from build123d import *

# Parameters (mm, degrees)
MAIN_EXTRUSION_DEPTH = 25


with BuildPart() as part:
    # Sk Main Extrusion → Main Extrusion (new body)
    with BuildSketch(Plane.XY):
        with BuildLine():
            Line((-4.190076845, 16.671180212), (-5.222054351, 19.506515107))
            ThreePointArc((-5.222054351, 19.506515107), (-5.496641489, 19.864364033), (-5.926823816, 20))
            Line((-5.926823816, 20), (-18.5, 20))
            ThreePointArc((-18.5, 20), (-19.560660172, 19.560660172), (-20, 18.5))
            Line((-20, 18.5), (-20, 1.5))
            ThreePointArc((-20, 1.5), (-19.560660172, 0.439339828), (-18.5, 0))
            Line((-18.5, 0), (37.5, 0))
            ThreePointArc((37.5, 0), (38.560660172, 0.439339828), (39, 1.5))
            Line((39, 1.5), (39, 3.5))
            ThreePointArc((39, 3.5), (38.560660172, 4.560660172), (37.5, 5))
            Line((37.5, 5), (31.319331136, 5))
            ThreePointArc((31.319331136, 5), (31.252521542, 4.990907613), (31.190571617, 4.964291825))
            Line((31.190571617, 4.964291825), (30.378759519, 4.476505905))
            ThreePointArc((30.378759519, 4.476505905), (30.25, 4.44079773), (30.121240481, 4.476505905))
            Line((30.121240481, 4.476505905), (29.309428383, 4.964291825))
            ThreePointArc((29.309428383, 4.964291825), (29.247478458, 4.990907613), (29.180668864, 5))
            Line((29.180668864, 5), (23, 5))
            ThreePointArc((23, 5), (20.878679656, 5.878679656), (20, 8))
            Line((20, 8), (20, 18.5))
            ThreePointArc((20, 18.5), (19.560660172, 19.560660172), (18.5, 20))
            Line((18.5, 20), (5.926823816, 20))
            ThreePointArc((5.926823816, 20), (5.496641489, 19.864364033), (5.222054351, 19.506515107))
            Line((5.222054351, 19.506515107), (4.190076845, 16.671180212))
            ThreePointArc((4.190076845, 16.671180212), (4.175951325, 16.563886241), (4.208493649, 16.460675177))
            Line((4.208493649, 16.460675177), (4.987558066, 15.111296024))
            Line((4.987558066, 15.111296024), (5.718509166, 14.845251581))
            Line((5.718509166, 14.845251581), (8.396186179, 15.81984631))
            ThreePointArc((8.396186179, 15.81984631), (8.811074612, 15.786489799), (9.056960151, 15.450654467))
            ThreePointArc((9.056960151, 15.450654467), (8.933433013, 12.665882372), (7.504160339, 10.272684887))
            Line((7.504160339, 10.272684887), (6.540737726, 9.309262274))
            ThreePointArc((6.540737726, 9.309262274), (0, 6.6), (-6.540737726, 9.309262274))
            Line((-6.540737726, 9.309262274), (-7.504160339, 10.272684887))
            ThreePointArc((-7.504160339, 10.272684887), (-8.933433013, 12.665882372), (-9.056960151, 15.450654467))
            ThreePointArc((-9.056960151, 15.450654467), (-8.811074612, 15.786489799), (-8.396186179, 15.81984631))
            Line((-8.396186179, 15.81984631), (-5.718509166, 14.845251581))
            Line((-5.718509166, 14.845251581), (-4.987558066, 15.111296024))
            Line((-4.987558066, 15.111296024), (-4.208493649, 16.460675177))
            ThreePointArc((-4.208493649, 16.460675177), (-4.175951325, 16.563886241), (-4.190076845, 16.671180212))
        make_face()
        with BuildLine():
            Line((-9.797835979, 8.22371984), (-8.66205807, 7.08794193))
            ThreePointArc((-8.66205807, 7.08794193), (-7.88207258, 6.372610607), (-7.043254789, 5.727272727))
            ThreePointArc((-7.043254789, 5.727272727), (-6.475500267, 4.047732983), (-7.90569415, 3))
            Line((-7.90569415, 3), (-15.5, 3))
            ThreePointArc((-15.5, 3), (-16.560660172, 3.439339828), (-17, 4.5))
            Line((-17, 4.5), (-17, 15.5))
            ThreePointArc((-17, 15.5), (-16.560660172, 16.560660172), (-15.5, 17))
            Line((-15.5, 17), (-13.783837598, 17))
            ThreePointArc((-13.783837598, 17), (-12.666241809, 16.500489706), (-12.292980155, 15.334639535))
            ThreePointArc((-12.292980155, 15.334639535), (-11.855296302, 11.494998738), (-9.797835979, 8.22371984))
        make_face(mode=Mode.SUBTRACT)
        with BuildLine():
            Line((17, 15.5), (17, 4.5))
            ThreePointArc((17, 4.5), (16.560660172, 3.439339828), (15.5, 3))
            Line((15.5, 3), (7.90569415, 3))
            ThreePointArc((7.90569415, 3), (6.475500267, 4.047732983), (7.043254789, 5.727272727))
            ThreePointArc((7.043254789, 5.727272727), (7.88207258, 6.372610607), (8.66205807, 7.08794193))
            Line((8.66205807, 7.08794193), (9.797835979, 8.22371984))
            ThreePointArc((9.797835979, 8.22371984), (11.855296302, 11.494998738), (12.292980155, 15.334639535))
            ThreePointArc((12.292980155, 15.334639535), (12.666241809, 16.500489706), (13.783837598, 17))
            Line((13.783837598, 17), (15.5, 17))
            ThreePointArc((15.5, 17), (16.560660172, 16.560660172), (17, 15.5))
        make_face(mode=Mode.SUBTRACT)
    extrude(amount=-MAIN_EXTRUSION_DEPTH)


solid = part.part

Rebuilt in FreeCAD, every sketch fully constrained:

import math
import FreeCAD as App
import Part
import Sketcher

V = App.Vector
Q = App.Units.Quantity

doc = App.newDocument("Part")
body = doc.addObject("PartDesign::Body", "Body")

sketch1 = doc.addObject("Sketcher::SketchObject", "Sketch")
body.addObject(sketch1)
sketch1.AttachmentSupport = (doc.XY_Plane, [""])
sketch1.MapMode = "FlatFace"
sketch1.addGeometry([
    Part.LineSegment(V(-4.19, 16.67, 0), V(-5.22, 19.51, 0)),
    Part.ArcOfCircle(Part.Circle(V(-5.93, 19.25, 0), V(0, 0, 1), 0.75), math.radians(20), math.radians(90)),
    Part.LineSegment(V(-5.93, 20, 0), V(-18.5, 20, 0)),
    Part.ArcOfCircle(Part.Circle(V(-18.5, 18.5, 0), V(0, 0, 1), 1.5), math.radians(90), math.radians(180)),
    Part.LineSegment(V(-20, 18.5, 0), V(-20, 1.5, 0)),
    Part.ArcOfCircle(Part.Circle(V(-18.5, 1.5, 0), V(0, 0, 1), 1.5), math.radians(180), math.radians(270)),
    Part.LineSegment(V(-18.5, 0, 0), V(37.5, 0, 0)),
    Part.ArcOfCircle(Part.Circle(V(37.5, 1.5, 0), V(0, 0, 1), 1.5), math.radians(-90), math.radians(0)),
    Part.LineSegment(V(39, 1.5, 0), V(39, 3.5, 0)),
    Part.ArcOfCircle(Part.Circle(V(37.5, 3.5, 0), V(0, 0, 1), 1.5), math.radians(0), math.radians(90)),
    Part.LineSegment(V(37.5, 5, 0), V(31.32, 5, 0)),
    Part.ArcOfCircle(Part.Circle(V(31.32, 4.75, 0), V(0, 0, 1), 0.25), math.radians(90), math.radians(121)),
    Part.LineSegment(V(31.19, 4.96, 0), V(30.38, 4.48, 0)),
    Part.ArcOfCircle(Part.Circle(V(30.25, 4.69, 0), V(0, 0, 1), 0.25), math.radians(-121), math.radians(-59)),
    Part.LineSegment(V(30.12, 4.48, 0), V(29.31, 4.96, 0)),
    Part.ArcOfCircle(Part.Circle(V(29.18, 4.75, 0), V(0, 0, 1), 0.25), math.radians(59), math.radians(90)),
    Part.LineSegment(V(29.18, 5, 0), V(23, 5, 0)),
    Part.ArcOfCircle(Part.Circle(V(23, 8, 0), V(0, 0, 1), 3), math.radians(180), math.radians(270)),
    Part.LineSegment(V(20, 8, 0), V(20, 18.5, 0)),
    Part.ArcOfCircle(Part.Circle(V(18.5, 18.5, 0), V(0, 0, 1), 1.5), math.radians(0), math.radians(90)),
    Part.LineSegment(V(18.5, 20, 0), V(5.93, 20, 0)),
    Part.ArcOfCircle(Part.Circle(V(5.93, 19.25, 0), V(0, 0, 1), 0.75), math.radians(90), math.radians(160)),
    Part.LineSegment(V(5.22, 19.51, 0), V(4.19, 16.67, 0)),
    Part.ArcOfCircle(Part.Circle(V(4.42, 16.59, 0), V(0, 0, 1), 0.25), math.radians(160), math.radians(210)),
    Part.LineSegment(V(4.21, 16.46, 0), V(4.99, 15.11, 0)),
    Part.LineSegment(V(4.99, 15.11, 0), V(5.72, 14.85, 0)),
    Part.LineSegment(V(5.72, 14.85, 0), V(8.4, 15.82, 0)),
    Part.ArcOfCircle(Part.Circle(V(8.57, 15.35, 0), V(0, 0, 1), 0.5), math.radians(12), math.radians(110)),
    Part.ArcOfCircle(Part.Circle(V(3.47, 14.3, 0), V(0, 0, 1), 5.7), math.radians(-45), math.radians(12)),
    Part.LineSegment(V(7.5, 10.27, 0), V(6.54, 9.31, 0)),
    Part.ArcOfCircle(Part.Circle(V(0, 15.85, 0), V(0, 0, 1), 9.25), math.radians(-135), math.radians(-45)),
    Part.LineSegment(V(-6.54, 9.31, 0), V(-7.5, 10.27, 0)),
    Part.ArcOfCircle(Part.Circle(V(-3.47, 14.3, 0), V(0, 0, 1), 5.7), math.radians(168), math.radians(225)),
    Part.ArcOfCircle(Part.Circle(V(-8.57, 15.35, 0), V(0, 0, 1), 0.5), math.radians(70), math.radians(168)),
    Part.LineSegment(V(-8.4, 15.82, 0), V(-5.72, 14.85, 0)),
    Part.LineSegment(V(-5.72, 14.85, 0), V(-4.99, 15.11, 0)),
    Part.LineSegment(V(-4.99, 15.11, 0), V(-4.21, 16.46, 0)),
    Part.ArcOfCircle(Part.Circle(V(-4.42, 16.59, 0), V(0, 0, 1), 0.25), math.radians(-30), math.radians(20)),
    Part.ArcOfCircle(Part.Circle(V(-3.65, 14.38, 0), V(0, 0, 1), 8.7), math.radians(174), math.radians(225)),
    Part.LineSegment(V(-9.8, 8.22, 0), V(-8.66, 7.09, 0)),
    Part.ArcOfCircle(Part.Circle(V(0, 15.75, 0), V(0, 0, 1), 12.25), math.radians(-135), math.radians(-125.1)),
    Part.ArcOfCircle(Part.Circle(V(-7.91, 4.5, 0), V(0, 0, 1), 1.5), math.radians(-90), math.radians(55)),
    Part.LineSegment(V(-7.91, 3, 0), V(-15.5, 3, 0)),
    Part.ArcOfCircle(Part.Circle(V(-15.5, 4.5, 0), V(0, 0, 1), 1.5), math.radians(180), math.radians(270)),
    Part.LineSegment(V(-17, 4.5, 0), V(-17, 15.5, 0)),
    Part.ArcOfCircle(Part.Circle(V(-15.5, 15.5, 0), V(0, 0, 1), 1.5), math.radians(90), math.radians(180)),
    Part.LineSegment(V(-15.5, 17, 0), V(-13.78, 17, 0)),
    Part.ArcOfCircle(Part.Circle(V(-13.78, 15.5, 0), V(0, 0, 1), 1.5), math.radians(-6), math.radians(90)),
    Part.ArcOfCircle(Part.Circle(V(15.5, 15.5, 0), V(0, 0, 1), 1.5), math.radians(0), math.radians(90)),
    Part.LineSegment(V(17, 15.5, 0), V(17, 4.5, 0)),
    Part.ArcOfCircle(Part.Circle(V(15.5, 4.5, 0), V(0, 0, 1), 1.5), math.radians(-90), math.radians(0)),
    Part.LineSegment(V(15.5, 3, 0), V(7.91, 3, 0)),
    Part.ArcOfCircle(Part.Circle(V(7.91, 4.5, 0), V(0, 0, 1), 1.5), math.radians(125), math.radians(270)),
    Part.ArcOfCircle(Part.Circle(V(0, 15.75, 0), V(0, 0, 1), 12.25), math.radians(-54.9), math.radians(-45)),
    Part.LineSegment(V(8.66, 7.09, 0), V(9.8, 8.22, 0)),
    Part.ArcOfCircle(Part.Circle(V(3.65, 14.38, 0), V(0, 0, 1), 8.7), math.radians(-45), math.radians(6)),
    Part.ArcOfCircle(Part.Circle(V(13.78, 15.5, 0), V(0, 0, 1), 1.5), math.radians(90), math.radians(186)),
    Part.LineSegment(V(13.78, 17, 0), V(15.5, 17, 0)),
], False)
sketch1.addConstraint([
    Sketcher.Constraint("Tangent", 0, 2, 1, 1),
    Sketcher.Constraint("Tangent", 1, 2, 2, 1),
    Sketcher.Constraint("Tangent", 2, 2, 3, 1),
    Sketcher.Constraint("Tangent", 3, 2, 4, 1),
    Sketcher.Constraint("Tangent", 4, 2, 5, 1),
    Sketcher.Constraint("Tangent", 5, 2, 6, 1),
    Sketcher.Constraint("Tangent", 6, 2, 7, 1),
    Sketcher.Constraint("Tangent", 7, 2, 8, 1),
    Sketcher.Constraint("Tangent", 8, 2, 9, 1),
    Sketcher.Constraint("Tangent", 9, 2, 10, 1),
    Sketcher.Constraint("Tangent", 10, 2, 11, 1),
    Sketcher.Constraint("Tangent", 11, 2, 12, 1),
    Sketcher.Constraint("Tangent", 12, 2, 13, 2),
    Sketcher.Constraint("Tangent", 13, 1, 14, 1),
    Sketcher.Constraint("Tangent", 14, 2, 15, 1),
    Sketcher.Constraint("Tangent", 15, 2, 16, 1),
    Sketcher.Constraint("Tangent", 16, 2, 17, 2),
    Sketcher.Constraint("Tangent", 17, 1, 18, 1),
    Sketcher.Constraint("Tangent", 18, 2, 19, 1),
    Sketcher.Constraint("Tangent", 19, 2, 20, 1),
    Sketcher.Constraint("Tangent", 20, 2, 21, 1),
    Sketcher.Constraint("Tangent", 21, 2, 22, 1),
    Sketcher.Constraint("Tangent", 22, 2, 23, 1),
    Sketcher.Constraint("Tangent", 23, 2, 24, 1),
    Sketcher.Constraint("Coincident", 24, 2, 25, 1),
    Sketcher.Constraint("Coincident", 25, 2, 26, 1),
    Sketcher.Constraint("Tangent", 26, 2, 27, 2),
    Sketcher.Constraint("Tangent", 27, 1, 28, 2),
    Sketcher.Constraint("Tangent", 28, 1, 29, 1),
    Sketcher.Constraint("Tangent", 29, 2, 30, 2),
    Sketcher.Constraint("Tangent", 30, 1, 31, 1),
    Sketcher.Constraint("Tangent", 31, 2, 32, 2),
    Sketcher.Constraint("Tangent", 32, 1, 33, 2),
    Sketcher.Constraint("Tangent", 33, 1, 34, 1),
    Sketcher.Constraint("Coincident", 34, 2, 35, 1),
    Sketcher.Constraint("Coincident", 35, 2, 36, 1),
    Sketcher.Constraint("Tangent", 36, 2, 37, 1),
    Sketcher.Constraint("Tangent", 37, 2, 0, 1),
    Sketcher.Constraint("Tangent", 38, 2, 39, 1),
    Sketcher.Constraint("Tangent", 39, 2, 40, 1),
    Sketcher.Constraint("Tangent", 40, 2, 41, 2),
    Sketcher.Constraint("Tangent", 41, 1, 42, 1),
    Sketcher.Constraint("Tangent", 42, 2, 43, 2),
    Sketcher.Constraint("Tangent", 43, 1, 44, 1),
    Sketcher.Constraint("Tangent", 44, 2, 45, 2),
    Sketcher.Constraint("Tangent", 45, 1, 46, 1),
    Sketcher.Constraint("Tangent", 46, 2, 47, 2),
    Sketcher.Constraint("Tangent", 47, 1, 38, 1),
    Sketcher.Constraint("Tangent", 48, 1, 49, 1),
    Sketcher.Constraint("Tangent", 49, 2, 50, 2),
    Sketcher.Constraint("Tangent", 50, 1, 51, 1),
    Sketcher.Constraint("Tangent", 51, 2, 52, 2),
    Sketcher.Constraint("Tangent", 52, 1, 53, 1),
    Sketcher.Constraint("Tangent", 53, 2, 54, 1),
    Sketcher.Constraint("Tangent", 54, 2, 55, 1),
    Sketcher.Constraint("Tangent", 55, 2, 56, 2),
    Sketcher.Constraint("Tangent", 56, 1, 57, 1),
    Sketcher.Constraint("Tangent", 57, 2, 48, 2),
    Sketcher.Constraint("Horizontal", 2),
    Sketcher.Constraint("Vertical", 4),
    Sketcher.Constraint("Horizontal", 6),
    Sketcher.Constraint("Vertical", 8),
    Sketcher.Constraint("Horizontal", 10),
    Sketcher.Constraint("Horizontal", 16),
    Sketcher.Constraint("Vertical", 18),
    Sketcher.Constraint("Horizontal", 20),
    Sketcher.Constraint("Horizontal", 42),
    Sketcher.Constraint("Vertical", 44),
    Sketcher.Constraint("Horizontal", 46),
    Sketcher.Constraint("Vertical", 49),
    Sketcher.Constraint("Horizontal", 51),
    Sketcher.Constraint("Horizontal", 57),
    Sketcher.Constraint("Coincident", 53, 3, 40, 3),
    Sketcher.Constraint("Equal", 3, 5),
    Sketcher.Constraint("Equal", 5, 7),
    Sketcher.Constraint("Equal", 7, 9),
    Sketcher.Constraint("Equal", 11, 13),
    Sketcher.Constraint("Equal", 13, 15),
    Sketcher.Constraint("Equal", 9, 19),
    Sketcher.Constraint("Equal", 1, 21),
    Sketcher.Constraint("Equal", 15, 23),
    Sketcher.Constraint("Equal", 28, 32),
    Sketcher.Constraint("Equal", 27, 33),
    Sketcher.Constraint("Equal", 23, 37),
    Sketcher.Constraint("Equal", 19, 41),
    Sketcher.Constraint("Equal", 41, 43),
    Sketcher.Constraint("Equal", 43, 45),
    Sketcher.Constraint("Equal", 45, 47),
    Sketcher.Constraint("Equal", 47, 48),
    Sketcher.Constraint("Equal", 48, 50),
    Sketcher.Constraint("Equal", 50, 52),
    Sketcher.Constraint("Equal", 40, 53),
    Sketcher.Constraint("Equal", 38, 55),
    Sketcher.Constraint("Equal", 52, 56),
    Sketcher.Constraint("Symmetric", 3, 3, 19, 3, -2),
    Sketcher.Constraint("Symmetric", 28, 3, 32, 3, -2),
    Sketcher.Constraint("Symmetric", 23, 3, 37, 3, -2),
    Sketcher.Constraint("Symmetric", 45, 3, 48, 3, -2),
    Sketcher.Constraint("Symmetric", 41, 3, 52, 3, -2),
    Sketcher.Constraint("Symmetric", 38, 3, 55, 3, -2),
    Sketcher.Constraint("Symmetric", 26, 2, 33, 1, -2),
    Sketcher.Constraint("Symmetric", 24, 2, 35, 2, -2),
    Sketcher.Constraint("PointOnObject", 30, 3, -2),
    Sketcher.Constraint("PointOnObject", 5, 2, -1),
    Sketcher.Constraint("Perpendicular", 22, 25),
    Sketcher.Constraint("Perpendicular", 0, 26),
    Sketcher.Constraint("Perpendicular", 29, 31),
    Sketcher.Constraint("Parallel", 25, 34),
    Sketcher.Constraint("Parallel", 26, 35),
    Sketcher.Constraint("Parallel", 31, 39),
    Sketcher.Constraint("Horizontal", 11, 3, 15, 3),
    Sketcher.Constraint("Horizontal", 12, 2, 13, 1),
    Sketcher.Constraint("Equal", 10, 16),
    Sketcher.Constraint("Radius", 17, 3.0),
    Sketcher.Constraint("Radius", 3, 1.5),
    Sketcher.Constraint("Radius", 27, 0.5),
    Sketcher.Constraint("Radius", 28, 5.7),
    Sketcher.Constraint("Radius", 38, 8.7),
    Sketcher.Constraint("DistanceX", 6, 1, 6, 2, 56.0),
    Sketcher.Constraint("DistanceY", 4, 2, 4, 1, 17.0),
    Sketcher.Constraint("DistanceY", 8, 1, 8, 2, 2.0),
    Sketcher.Constraint("DistanceY", 44, 1, 44, 2, 11.0),
    Sketcher.Constraint("Angle", 0, Q("110 deg")),
    Sketcher.Constraint("Angle", 12, Q("-149 deg")),
    Sketcher.Constraint("Angle", 24, Q("-60 deg")),
    Sketcher.Constraint("Radius", 1, 0.75),
    Sketcher.Constraint("Radius", 11, 0.25),
    Sketcher.Constraint("Radius", 30, 9.25),
    Sketcher.Constraint("Radius", 40, 12.25),
    Sketcher.Constraint("DistanceX", -1, 1, 17, 3, 23.0),
    Sketcher.Constraint("DistanceY", -1, 1, 41, 1, 3.0),
    Sketcher.Constraint("DistanceX", 43, 1, -1, 1, 17.0),
    Sketcher.Constraint("DistanceY", -1, 1, 27, 3, 15.35),
    Sketcher.Constraint("DistanceY", -1, 1, 30, 3, 15.85),
    Sketcher.Constraint("DistanceY", -1, 1, 40, 3, 15.75),
    Sketcher.Constraint("DistanceX", -1, 1, 23, 3, 4.425),
    Sketcher.Constraint("Distance", 0, 3.0173),
    Sketcher.Constraint("DistanceX", 10, 2, 10, 1, 6.180669),
    Sketcher.Constraint("Distance", 24, 1.558129),
    Sketcher.Constraint("Distance", 25, 0.777862),
    Sketcher.Constraint("DistanceX", 46, 1, 46, 2, 1.716162),
])
pad1 = doc.addObject("PartDesign::Pad", "Pad")
body.addObject(pad1)
pad1.Profile = sketch1
pad1.Length = 25
pad1.Reversed = True

doc.recompute()
